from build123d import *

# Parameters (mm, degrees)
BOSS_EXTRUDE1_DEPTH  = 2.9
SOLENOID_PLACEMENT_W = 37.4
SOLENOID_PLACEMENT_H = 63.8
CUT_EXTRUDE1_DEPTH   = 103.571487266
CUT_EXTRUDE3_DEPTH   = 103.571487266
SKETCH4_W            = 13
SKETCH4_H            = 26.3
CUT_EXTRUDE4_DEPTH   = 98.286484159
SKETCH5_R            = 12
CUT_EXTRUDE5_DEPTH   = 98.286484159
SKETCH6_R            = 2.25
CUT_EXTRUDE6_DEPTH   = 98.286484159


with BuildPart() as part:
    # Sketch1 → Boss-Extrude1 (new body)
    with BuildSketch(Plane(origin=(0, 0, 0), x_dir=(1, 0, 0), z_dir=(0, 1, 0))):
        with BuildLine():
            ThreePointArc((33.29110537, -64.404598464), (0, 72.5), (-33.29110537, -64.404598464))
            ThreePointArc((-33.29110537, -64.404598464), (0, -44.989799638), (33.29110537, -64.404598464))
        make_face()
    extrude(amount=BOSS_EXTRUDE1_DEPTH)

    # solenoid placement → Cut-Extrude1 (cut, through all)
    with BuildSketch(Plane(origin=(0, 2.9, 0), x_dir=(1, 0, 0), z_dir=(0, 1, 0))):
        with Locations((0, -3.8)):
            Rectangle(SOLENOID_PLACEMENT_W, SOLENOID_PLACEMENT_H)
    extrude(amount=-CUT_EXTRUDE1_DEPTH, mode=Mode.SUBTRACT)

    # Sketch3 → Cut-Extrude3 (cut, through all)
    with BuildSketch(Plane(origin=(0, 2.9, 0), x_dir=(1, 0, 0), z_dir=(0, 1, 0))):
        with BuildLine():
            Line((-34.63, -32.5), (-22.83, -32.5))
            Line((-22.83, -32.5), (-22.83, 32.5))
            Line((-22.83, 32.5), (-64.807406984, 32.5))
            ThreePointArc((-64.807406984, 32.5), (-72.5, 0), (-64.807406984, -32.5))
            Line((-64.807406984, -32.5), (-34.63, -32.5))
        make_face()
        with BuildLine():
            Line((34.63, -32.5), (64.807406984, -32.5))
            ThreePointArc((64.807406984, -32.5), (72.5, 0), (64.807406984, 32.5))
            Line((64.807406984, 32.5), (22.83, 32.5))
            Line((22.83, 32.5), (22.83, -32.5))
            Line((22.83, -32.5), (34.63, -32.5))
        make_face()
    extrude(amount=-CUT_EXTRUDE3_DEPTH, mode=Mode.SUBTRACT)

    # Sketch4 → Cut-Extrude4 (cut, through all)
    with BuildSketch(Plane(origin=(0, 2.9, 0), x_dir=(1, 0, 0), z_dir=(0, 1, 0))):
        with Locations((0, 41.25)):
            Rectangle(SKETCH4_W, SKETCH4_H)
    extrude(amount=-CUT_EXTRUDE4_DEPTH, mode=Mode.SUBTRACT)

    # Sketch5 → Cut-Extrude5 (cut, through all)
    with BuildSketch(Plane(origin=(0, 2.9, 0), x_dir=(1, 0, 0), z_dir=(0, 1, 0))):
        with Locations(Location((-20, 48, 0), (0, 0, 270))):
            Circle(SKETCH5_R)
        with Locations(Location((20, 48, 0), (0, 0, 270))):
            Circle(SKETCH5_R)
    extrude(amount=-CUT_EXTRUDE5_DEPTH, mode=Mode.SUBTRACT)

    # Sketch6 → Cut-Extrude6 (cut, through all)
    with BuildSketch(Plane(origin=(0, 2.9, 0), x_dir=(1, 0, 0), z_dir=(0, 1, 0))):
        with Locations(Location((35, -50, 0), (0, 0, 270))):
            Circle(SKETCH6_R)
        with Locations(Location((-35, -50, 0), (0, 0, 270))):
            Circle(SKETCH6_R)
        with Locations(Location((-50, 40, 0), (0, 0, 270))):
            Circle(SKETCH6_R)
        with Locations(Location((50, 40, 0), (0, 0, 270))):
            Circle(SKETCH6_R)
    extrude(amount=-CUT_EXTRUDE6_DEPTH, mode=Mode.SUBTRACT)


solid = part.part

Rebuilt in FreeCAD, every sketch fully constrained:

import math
import FreeCAD as App
import Part
import Sketcher


def add_polygon(sketch, points):
    """Adds a closed chain of lines whose ends are joined by coincident constraints."""
    first, n = sketch.GeometryCount, len(points)
    for a, b in zip(points, points[1:] + points[:1]):
        sketch.addGeometry(Part.LineSegment(App.Vector(*a, 0), App.Vector(*b, 0)), False)
    for i in range(n):
        sketch.addConstraint(Sketcher.Constraint("Coincident", first + i, 2, first + (i + 1) % n, 1))

doc = App.newDocument("Part")
body = doc.addObject("PartDesign::Body", "Body")

sketch1 = body.newObject("Sketcher::SketchObject", "Sketch")
sketch1.AttachmentSupport = (doc.getObject("XZ_Plane"), [""])
sketch1.MapMode = "FlatFace"
sketch1.addGeometry([
    Part.ArcOfCircle(Part.Circle(App.Vector(0, 0, 0), App.Vector(0, 0, 1), 72), math.radians(117), math.radians(423)),
    Part.ArcOfCircle(Part.Circle(App.Vector(0, 83, 0), App.Vector(0, 0, 1), 38), math.radians(-150), math.radians(-30)),
], False)
sketch1.addConstraint([
    Sketcher.Constraint("Coincident", 0, 1, 1, 1),
    Sketcher.Constraint("Coincident", 1, 2, 0, 2),
    Sketcher.Constraint("Coincident", 0, 3, -1, 1),
    Sketcher.Constraint("PointOnObject", 1, 3, -2),
    Sketcher.Constraint("Radius", 0, 72.5),
    Sketcher.Constraint("Radius", 1, 38.25),
    Sketcher.Constraint("DistanceY", -1, 1, 1, 3, 83.2398),
])
pad1 = body.newObject("PartDesign::Pad", "Pad")
pad1.Profile = sketch1
pad1.Length = 2.9
pad1.Reversed = True

sketch2 = body.newObject("Sketcher::SketchObject", "Sketch001")
sketch2.AttachmentSupport = (doc.getObject("XZ_Plane"), [""])
sketch2.MapMode = "FlatFace"
sketch2.AttachmentOffset = App.Placement(App.Vector(0, 0, -2.9), App.Rotation())
add_polygon(sketch2, [(-19, -28), (-19, 36), (19, 36), (19, -28)])
sketch2.addConstraint([
    Sketcher.Constraint("Vertical", 0),
    Sketcher.Constraint("Horizontal", 1),
    Sketcher.Constraint("Vertical", 2),
    Sketcher.Constraint("Horizontal", 3),
    Sketcher.Constraint("DistanceX", 1, 1, 1, 2, 37.4),
    Sketcher.Constraint("DistanceY", 0, 1, 0, 2, 63.8),
    Sketcher.Constraint("DistanceX", 0, 2, -1, 1, 18.7),
    Sketcher.Constraint("DistanceY", -1, 1, 0, 2, 35.7),
])
pocket1 = body.newObject("PartDesign::Pocket", "Pocket")
pocket1.Profile = sketch2
pocket1.Type = "ThroughAll"
pocket1.Reversed = True

sketch3 = body.newObject("Sketcher::SketchObject", "Sketch002")
sketch3.AttachmentSupport = (doc.getObject("XZ_Plane"), [""])
sketch3.MapMode = "FlatFace"
sketch3.AttachmentOffset = App.Placement(App.Vector(0, 0, -2.9), App.Rotation())
sketch3.addGeometry([
    Part.LineSegment(App.Vector(-23, 32, 0), App.Vector(-23, -32, 0)),
    Part.LineSegment(App.Vector(-23, -32, 0), App.Vector(-65, -32, 0)),
    Part.ArcOfCircle(Part.Circle(App.Vector(0, 0, 0), App.Vector(0, 0, 1), 72), math.radians(153), math.radians(207)),
    Part.LineSegment(App.Vector(-65, 32, 0), App.Vector(-23, 32, 0)),
    Part.ArcOfCircle(Part.Circle(App.Vector(0, 0, 0), App.Vector(0, 0, 1), 72), math.radians(-27), math.radians(27)),
    Part.LineSegment(App.Vector(65, -32, 0), App.Vector(23, -32, 0)),
    Part.LineSegment(App.Vector(23, -32, 0), App.Vector(23, 32, 0)),
    Part.LineSegment(App.Vector(23, 32, 0), App.Vector(65, 32, 0)),
], False)
sketch3.addConstraint([
    Sketcher.Constraint("Coincident", 0, 2, 1, 1),
    Sketcher.Constraint("Coincident", 1, 2, 2, 2),
    Sketcher.Constraint("Coincident", 2, 1, 3, 1),
    Sketcher.Constraint("Coincident", 3, 2, 0, 1),
    Sketcher.Constraint("Coincident", 4, 1, 5, 1),
    Sketcher.Constraint("Coincident", 5, 2, 6, 1),
    Sketcher.Constraint("Coincident", 6, 2, 7, 1),
    Sketcher.Constraint("Coincident", 7, 2, 4, 2),
    Sketcher.Constraint("Vertical", 0),
    Sketcher.Constraint("Horizontal", 1),
    Sketcher.Constraint("Horizontal", 3),
    Sketcher.Constraint("Horizontal", 5),
    Sketcher.Constraint("Vertical", 6),
    Sketcher.Constraint("Horizontal", 7),
    Sketcher.Constraint("Coincident", 2, 3, -1, 1),
    Sketcher.Constraint("Coincident", 4, 3, -1, 1),
    Sketcher.Constraint("Equal", 2, 4),
    Sketcher.Constraint("Symmetric", 3, 2, 5, 2, -1, 1),
    Sketcher.Constraint("Horizontal", 1, 2, 4, 1),
    Sketcher.Constraint("Horizontal", 3, 2, 6, 2),
    Sketcher.Constraint("Radius", 2, 72.5),
    Sketcher.Constraint("DistanceY", 0, 2, 0, 1, 65.0),
    Sketcher.Constraint("DistanceX", 0, 2, -1, 1, 22.83),
])
pocket2 = body.newObject("PartDesign::Pocket", "Pocket001")
pocket2.Profile = sketch3
pocket2.Type = "ThroughAll"
pocket2.Reversed = True

sketch4 = body.newObject("Sketcher::SketchObject", "Sketch003")
sketch4.AttachmentSupport = (doc.getObject("XZ_Plane"), [""])
sketch4.MapMode = "FlatFace"
sketch4.AttachmentOffset = App.Placement(App.Vector(0, 0, -2.9), App.Rotation())
add_polygon(sketch4, [(-6, -54), (-6, -28), (6, -28), (6, -54)])
sketch4.addConstraint([
    Sketcher.Constraint("Vertical", 0),
    Sketcher.Constraint("Horizontal", 1),
    Sketcher.Constraint("Vertical", 2),
    Sketcher.Constraint("Horizontal", 3),
    Sketcher.Constraint("DistanceX", 1, 1, 1, 2, 13.0),
    Sketcher.Constraint("DistanceY", 0, 1, 0, 2, 26.3),
    Sketcher.Constraint("DistanceX", 0, 2, -1, 1, 6.5),
    Sketcher.Constraint("DistanceY", 0, 2, -1, 1, 28.1),
])
pocket3 = body.newObject("PartDesign::Pocket", "Pocket002")
pocket3.Profile = sketch4
pocket3.Type = "ThroughAll"
pocket3.Reversed = True

sketch5 = body.newObject("Sketcher::SketchObject", "Sketch004")
sketch5.AttachmentSupport = (doc.getObject("XZ_Plane"), [""])
sketch5.MapMode = "FlatFace"
sketch5.AttachmentOffset = App.Placement(App.Vector(0, 0, -2.9), App.Rotation())
sketch5.addGeometry([
    Part.Circle(App.Vector(-20, -48, 0), App.Vector(0, 0, 1), 12),
    Part.Circle(App.Vector(20, -48, 0), App.Vector(0, 0, 1), 12),
], False)
sketch5.addConstraint([
    Sketcher.Constraint("Equal", 0, 1),
    Sketcher.Constraint("Symmetric", 0, 3, 1, 3, -2),
    Sketcher.Constraint("Diameter", 0, 24.0),
    Sketcher.Constraint("DistanceX", 0, 3, -1, 1, 20.0),
    Sketcher.Constraint("DistanceY", 0, 3, -1, 1, 48.0),
])
pocket4 = body.newObject("PartDesign::Pocket", "Pocket003")
pocket4.Profile = sketch5
pocket4.Type = "ThroughAll"
pocket4.Reversed = True

sketch6 = body.newObject("Sketcher::SketchObject", "Sketch005")
sketch6.AttachmentSupport = (doc.getObject("XZ_Plane"), [""])
sketch6.MapMode = "FlatFace"
sketch6.AttachmentOffset = App.Placement(App.Vector(0, 0, -2.9), App.Rotation())
sketch6.addGeometry([
    Part.Circle(App.Vector(35, 50, 0), App.Vector(0, 0, 1), 2.2),
    Part.Circle(App.Vector(-35, 50, 0), App.Vector(0, 0, 1), 2.2),
    Part.Circle(App.Vector(-50, -40, 0), App.Vector(0, 0, 1), 2.2),
    Part.Circle(App.Vector(50, -40, 0), App.Vector(0, 0, 1), 2.2),
], False)
sketch6.addConstraint([
    Sketcher.Constraint("Equal", 0, 1),
    Sketcher.Constraint("Equal", 1, 2),
    Sketcher.Constraint("Equal", 2, 3),
    Sketcher.Constraint("Symmetric", 0, 3, 1, 3, -2),
    Sketcher.Constraint("Symmetric", 2, 3, 3, 3, -2),
    Sketcher.Constraint("Diameter", 0, 4.5),
    Sketcher.Constraint("DistanceX", -1, 1, 0, 3, 35.0),
    Sketcher.Constraint("DistanceY", -1, 1, 0, 3, 50.0),
    Sketcher.Constraint("DistanceX", 2, 3, -1, 1, 50.0),
    Sketcher.Constraint("DistanceY", 2, 3, -1, 1, 40.0),
])
pocket5 = body.newObject("PartDesign::Pocket", "Pocket004")
pocket5.Profile = sketch6
pocket5.Type = "ThroughAll"
pocket5.Reversed = True

doc.recompute()
